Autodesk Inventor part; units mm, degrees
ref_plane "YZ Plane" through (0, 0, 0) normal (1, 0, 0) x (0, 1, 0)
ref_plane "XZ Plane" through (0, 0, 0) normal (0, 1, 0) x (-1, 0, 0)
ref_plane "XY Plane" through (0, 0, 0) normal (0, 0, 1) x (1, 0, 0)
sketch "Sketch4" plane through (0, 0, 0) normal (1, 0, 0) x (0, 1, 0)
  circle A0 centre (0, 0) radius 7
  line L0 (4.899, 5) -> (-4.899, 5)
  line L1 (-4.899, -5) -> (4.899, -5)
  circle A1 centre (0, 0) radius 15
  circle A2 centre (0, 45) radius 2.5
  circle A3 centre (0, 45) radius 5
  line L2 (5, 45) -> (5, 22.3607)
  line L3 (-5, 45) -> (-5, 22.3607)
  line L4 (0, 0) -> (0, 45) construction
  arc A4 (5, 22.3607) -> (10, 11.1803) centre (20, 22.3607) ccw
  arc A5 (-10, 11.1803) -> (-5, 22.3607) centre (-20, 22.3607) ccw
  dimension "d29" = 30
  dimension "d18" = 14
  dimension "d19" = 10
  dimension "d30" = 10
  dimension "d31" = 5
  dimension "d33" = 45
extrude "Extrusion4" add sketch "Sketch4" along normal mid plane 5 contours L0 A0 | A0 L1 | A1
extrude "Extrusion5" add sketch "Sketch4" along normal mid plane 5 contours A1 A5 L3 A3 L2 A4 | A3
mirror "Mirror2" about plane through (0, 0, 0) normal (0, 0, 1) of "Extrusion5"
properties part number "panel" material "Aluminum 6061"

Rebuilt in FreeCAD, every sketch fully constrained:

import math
import FreeCAD as App
import Part
import Sketcher
from FreeCAD import Vector

doc = App.newDocument("Part")
body = doc.addObject("PartDesign::Body", "Body")

# Sketch on YZ plane
sketch1 = body.newObject("Sketcher::SketchObject", "Sketch")
sketch1.AttachmentSupport = (doc.getObject("YZ_Plane"), [""])
sketch1.MapMode = "FlatFace"
sketch1.addGeometry([
    Part.Circle(Vector(0, 0, 0), Vector(0, 0, 1), 15),  # 0
    Part.LineSegment(Vector(-5, 5, 0), Vector(5, 5, 0)),  # 1
    Part.ArcOfCircle(Part.Circle(Vector(0, 0, 0), Vector(0, 0, 1), 7), math.radians(-46), math.radians(46)),  # 2
    Part.LineSegment(Vector(5, -5, 0), Vector(-5, -5, 0)),  # 3
    Part.ArcOfCircle(Part.Circle(Vector(0, 0, 0), Vector(0, 0, 1), 7), math.radians(134), math.radians(226)),  # 4
], False)
sketch1.addConstraint([
    Sketcher.Constraint("Coincident", 1, 2, 2, 2),
    Sketcher.Constraint("Coincident", 2, 1, 3, 1),
    Sketcher.Constraint("Coincident", 3, 2, 4, 2),
    Sketcher.Constraint("Coincident", 4, 1, 1, 1),
    Sketcher.Constraint("Horizontal", 1),
    Sketcher.Constraint("Horizontal", 3),
    Sketcher.Constraint("Coincident", 0, 3, -1, 1),
    Sketcher.Constraint("Coincident", 2, 3, -1, 1),
    Sketcher.Constraint("Coincident", 4, 3, -1, 1),
    Sketcher.Constraint("Equal", 2, 4),
    Sketcher.Constraint("Vertical", 1, 2, 2, 1),
    Sketcher.Constraint("Diameter", 0, 30.0),
    Sketcher.Constraint("Radius", 2, 7.0),
    Sketcher.Constraint("DistanceY", -1, 1, 1, 2, 5.0),
])
pad1 = body.newObject("PartDesign::Pad", "Pad")
pad1.Profile = sketch1
pad1.Length = 5
pad1.Midplane = True

# Sketch on YZ plane
sketch2 = body.newObject("Sketcher::SketchObject", "Sketch001")
sketch2.AttachmentSupport = (doc.getObject("YZ_Plane"), [""])
sketch2.MapMode = "FlatFace"
sketch2.addGeometry([
    Part.ArcOfCircle(Part.Circle(Vector(0, 0, 0), Vector(0, 0, 1), 15), math.radians(48), math.radians(132)),  # 0
    Part.ArcOfCircle(Part.Circle(Vector(20, 22.4, 0), Vector(0, 0, 1), 15), math.radians(180), math.radians(228)),  # 1
    Part.LineSegment(Vector(5, 22.4, 0), Vector(5, 45, 0)),  # 2
    Part.ArcOfCircle(Part.Circle(Vector(0, 45, 0), Vector(0, 0, 1), 5), math.radians(0), math.radians(180)),  # 3
    Part.LineSegment(Vector(-5, 45, 0), Vector(-5, 22.4, 0)),  # 4
    Part.ArcOfCircle(Part.Circle(Vector(-20, 22.4, 0), Vector(0, 0, 1), 15), math.radians(-48), math.radians(0)),  # 5
    Part.Circle(Vector(0, 45, 0), Vector(0, 0, 1), 2.5),  # 6
], False)
sketch2.addConstraint([
    Sketcher.Constraint("Tangent", 0, 1, 1, 2),
    Sketcher.Constraint("Tangent", 1, 1, 2, 1),
    Sketcher.Constraint("Tangent", 2, 2, 3, 1),
    Sketcher.Constraint("Tangent", 3, 2, 4, 1),
    Sketcher.Constraint("Tangent", 4, 2, 5, 2),
    Sketcher.Constraint("Tangent", 5, 1, 0, 2),
    Sketcher.Constraint("Vertical", 2),
    Sketcher.Constraint("Vertical", 4),
    Sketcher.Constraint("Coincident", 0, 3, -1, 1),
    Sketcher.Constraint("Coincident", 6, 3, 3, 3),
    Sketcher.Constraint("Equal", 0, 1),
    Sketcher.Constraint("Equal", 1, 5),
    Sketcher.Constraint("PointOnObject", 3, 3, -2),
    Sketcher.Constraint("Diameter", 6, 5.0),
    Sketcher.Constraint("Radius", 0, 15.0),
    Sketcher.Constraint("Radius", 3, 5.0),
    Sketcher.Constraint("DistanceY", -1, 1, 3, 3, 45.0),
])
pad2 = body.newObject("PartDesign::Pad", "Pad001")
pad2.Profile = sketch2
pad2.Length = 5
pad2.Midplane = True
doc.recompute()

mirrored = body.newObject("PartDesign::Mirrored", "Mirrored")
mirrored.Originals = [pad2]
mirrored.MirrorPlane = (doc.getObject("XY_Plane"), [""])
body.Tip = mirrored

doc.recompute()
